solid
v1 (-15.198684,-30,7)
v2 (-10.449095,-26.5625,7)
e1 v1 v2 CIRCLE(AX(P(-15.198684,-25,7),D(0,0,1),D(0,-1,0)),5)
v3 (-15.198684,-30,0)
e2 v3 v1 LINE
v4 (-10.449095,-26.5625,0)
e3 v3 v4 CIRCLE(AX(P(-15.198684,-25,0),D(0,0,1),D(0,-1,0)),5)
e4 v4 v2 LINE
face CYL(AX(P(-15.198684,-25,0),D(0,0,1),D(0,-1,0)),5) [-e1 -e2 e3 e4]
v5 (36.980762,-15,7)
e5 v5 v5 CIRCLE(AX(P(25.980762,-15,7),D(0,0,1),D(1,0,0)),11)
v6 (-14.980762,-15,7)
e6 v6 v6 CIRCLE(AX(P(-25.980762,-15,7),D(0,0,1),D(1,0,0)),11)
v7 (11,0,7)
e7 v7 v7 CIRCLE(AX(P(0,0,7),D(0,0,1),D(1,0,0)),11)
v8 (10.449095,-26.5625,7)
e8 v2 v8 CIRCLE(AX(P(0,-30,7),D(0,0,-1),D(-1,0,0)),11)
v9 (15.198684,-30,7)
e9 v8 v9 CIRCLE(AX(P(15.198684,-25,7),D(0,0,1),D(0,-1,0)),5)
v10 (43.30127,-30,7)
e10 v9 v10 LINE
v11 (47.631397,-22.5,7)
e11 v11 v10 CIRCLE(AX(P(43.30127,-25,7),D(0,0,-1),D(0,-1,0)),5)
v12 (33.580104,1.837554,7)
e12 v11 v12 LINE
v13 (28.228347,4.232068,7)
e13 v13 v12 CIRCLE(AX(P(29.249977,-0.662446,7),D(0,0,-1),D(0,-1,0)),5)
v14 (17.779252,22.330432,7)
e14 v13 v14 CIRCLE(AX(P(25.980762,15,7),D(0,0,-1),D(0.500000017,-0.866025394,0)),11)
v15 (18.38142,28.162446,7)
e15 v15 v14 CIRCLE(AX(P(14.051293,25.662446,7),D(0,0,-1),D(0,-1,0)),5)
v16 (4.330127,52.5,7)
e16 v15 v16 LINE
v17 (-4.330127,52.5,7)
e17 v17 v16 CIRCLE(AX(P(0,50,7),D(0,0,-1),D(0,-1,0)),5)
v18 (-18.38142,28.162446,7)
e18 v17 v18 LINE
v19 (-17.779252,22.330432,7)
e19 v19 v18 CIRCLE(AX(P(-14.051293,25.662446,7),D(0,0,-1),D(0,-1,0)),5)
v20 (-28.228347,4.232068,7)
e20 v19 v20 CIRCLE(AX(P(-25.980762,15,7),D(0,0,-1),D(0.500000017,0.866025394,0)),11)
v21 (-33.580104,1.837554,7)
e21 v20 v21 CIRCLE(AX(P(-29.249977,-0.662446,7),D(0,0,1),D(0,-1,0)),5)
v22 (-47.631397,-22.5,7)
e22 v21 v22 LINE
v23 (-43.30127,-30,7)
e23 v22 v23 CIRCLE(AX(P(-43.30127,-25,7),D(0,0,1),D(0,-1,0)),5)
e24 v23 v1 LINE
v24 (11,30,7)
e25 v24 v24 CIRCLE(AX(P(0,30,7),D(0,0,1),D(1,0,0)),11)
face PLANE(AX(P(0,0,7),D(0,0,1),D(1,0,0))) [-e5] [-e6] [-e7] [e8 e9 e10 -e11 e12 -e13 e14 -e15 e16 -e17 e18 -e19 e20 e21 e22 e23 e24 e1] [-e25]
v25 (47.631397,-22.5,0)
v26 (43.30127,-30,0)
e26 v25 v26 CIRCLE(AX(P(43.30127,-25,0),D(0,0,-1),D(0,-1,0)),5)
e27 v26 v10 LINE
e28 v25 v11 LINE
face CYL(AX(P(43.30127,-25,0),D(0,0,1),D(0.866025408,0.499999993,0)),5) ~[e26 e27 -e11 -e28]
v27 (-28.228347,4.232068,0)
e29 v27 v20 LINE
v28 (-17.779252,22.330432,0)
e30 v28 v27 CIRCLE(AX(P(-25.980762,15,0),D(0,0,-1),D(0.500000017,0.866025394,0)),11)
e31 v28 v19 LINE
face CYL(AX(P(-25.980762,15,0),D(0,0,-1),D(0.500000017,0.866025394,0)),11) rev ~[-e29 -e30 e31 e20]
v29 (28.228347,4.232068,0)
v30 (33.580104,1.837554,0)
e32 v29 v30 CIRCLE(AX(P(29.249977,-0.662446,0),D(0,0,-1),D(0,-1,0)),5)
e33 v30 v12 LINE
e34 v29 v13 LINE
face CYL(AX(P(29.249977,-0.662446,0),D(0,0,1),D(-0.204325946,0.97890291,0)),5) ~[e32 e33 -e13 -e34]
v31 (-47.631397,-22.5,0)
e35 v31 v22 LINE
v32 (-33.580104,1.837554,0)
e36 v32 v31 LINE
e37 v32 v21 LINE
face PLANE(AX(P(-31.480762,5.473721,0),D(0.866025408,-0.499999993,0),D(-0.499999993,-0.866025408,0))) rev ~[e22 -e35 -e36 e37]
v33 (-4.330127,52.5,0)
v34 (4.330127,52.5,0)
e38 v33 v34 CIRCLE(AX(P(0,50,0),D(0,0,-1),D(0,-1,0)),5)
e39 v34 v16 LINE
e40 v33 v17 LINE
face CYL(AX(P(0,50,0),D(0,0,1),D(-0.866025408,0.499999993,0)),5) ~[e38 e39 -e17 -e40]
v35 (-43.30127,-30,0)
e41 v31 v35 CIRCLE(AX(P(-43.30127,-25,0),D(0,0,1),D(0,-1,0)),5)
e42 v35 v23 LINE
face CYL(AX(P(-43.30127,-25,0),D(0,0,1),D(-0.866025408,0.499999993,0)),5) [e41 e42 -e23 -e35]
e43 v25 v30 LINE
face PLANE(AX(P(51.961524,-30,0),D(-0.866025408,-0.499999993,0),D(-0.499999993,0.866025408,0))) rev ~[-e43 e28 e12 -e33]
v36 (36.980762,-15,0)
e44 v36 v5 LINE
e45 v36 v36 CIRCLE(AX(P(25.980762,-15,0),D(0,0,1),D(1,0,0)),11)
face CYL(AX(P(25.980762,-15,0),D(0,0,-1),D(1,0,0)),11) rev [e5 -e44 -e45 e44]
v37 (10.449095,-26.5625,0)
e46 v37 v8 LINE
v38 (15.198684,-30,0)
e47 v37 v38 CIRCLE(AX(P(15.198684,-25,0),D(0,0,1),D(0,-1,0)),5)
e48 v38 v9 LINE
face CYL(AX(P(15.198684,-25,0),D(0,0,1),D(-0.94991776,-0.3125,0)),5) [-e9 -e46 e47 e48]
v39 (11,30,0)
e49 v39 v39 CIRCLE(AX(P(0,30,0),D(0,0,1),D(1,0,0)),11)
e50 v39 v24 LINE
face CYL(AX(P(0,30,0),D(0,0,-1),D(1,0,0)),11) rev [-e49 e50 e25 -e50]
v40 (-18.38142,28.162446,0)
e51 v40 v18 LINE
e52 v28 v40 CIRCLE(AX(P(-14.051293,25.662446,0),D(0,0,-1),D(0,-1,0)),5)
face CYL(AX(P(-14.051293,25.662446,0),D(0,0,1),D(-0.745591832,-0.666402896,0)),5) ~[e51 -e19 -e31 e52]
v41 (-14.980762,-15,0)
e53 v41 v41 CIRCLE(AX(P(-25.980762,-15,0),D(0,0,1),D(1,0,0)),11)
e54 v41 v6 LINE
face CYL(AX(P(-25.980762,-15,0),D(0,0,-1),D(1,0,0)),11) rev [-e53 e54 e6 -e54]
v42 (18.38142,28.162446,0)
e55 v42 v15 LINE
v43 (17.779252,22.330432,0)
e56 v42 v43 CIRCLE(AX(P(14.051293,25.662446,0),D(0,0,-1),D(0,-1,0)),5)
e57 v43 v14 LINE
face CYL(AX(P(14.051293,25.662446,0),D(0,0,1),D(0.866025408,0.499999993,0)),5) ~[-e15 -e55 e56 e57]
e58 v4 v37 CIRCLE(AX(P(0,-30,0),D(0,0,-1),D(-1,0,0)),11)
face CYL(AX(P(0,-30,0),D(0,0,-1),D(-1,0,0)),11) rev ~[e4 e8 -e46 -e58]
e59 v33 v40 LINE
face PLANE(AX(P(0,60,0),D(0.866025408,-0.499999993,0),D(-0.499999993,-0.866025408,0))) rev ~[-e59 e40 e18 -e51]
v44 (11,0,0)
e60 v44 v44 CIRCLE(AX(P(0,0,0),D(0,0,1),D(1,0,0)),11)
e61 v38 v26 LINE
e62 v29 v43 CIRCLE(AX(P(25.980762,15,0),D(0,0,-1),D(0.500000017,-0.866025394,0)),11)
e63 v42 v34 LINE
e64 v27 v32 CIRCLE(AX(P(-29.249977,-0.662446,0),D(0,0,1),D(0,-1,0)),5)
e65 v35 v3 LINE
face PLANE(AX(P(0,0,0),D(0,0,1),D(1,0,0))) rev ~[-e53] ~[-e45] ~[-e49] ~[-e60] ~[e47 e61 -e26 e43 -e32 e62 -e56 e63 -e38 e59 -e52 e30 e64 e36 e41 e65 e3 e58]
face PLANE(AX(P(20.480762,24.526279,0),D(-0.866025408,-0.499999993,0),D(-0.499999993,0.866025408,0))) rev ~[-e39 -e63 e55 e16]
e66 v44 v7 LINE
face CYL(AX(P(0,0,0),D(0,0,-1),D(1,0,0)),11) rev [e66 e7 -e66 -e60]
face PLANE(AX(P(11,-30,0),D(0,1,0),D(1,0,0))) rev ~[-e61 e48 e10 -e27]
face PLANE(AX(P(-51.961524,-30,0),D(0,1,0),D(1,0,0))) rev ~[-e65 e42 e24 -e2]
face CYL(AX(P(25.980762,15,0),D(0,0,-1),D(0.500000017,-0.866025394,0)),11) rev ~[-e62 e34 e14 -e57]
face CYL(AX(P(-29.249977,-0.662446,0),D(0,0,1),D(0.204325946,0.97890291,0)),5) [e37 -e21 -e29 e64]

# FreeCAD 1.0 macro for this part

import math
import FreeCAD as App
import Part
import Sketcher

V = App.Vector
Q = App.Units.Quantity


def edges_at(feature, points):
    """Names of the edges that pass closest to the given points."""
    edges = feature.Shape.Edges
    near = lambda p: min(range(len(edges)), key=lambda i: edges[i].distToShape(Part.Vertex(*p))[0])
    return sorted({f"Edge{near(p) + 1}" for p in points})

doc = App.newDocument("Part")
body = doc.addObject("PartDesign::Body", "Body")

# Sketch on XY plane
sketch1 = body.newObject("Sketcher::SketchObject", "Sketch")
sketch1.AttachmentSupport = (doc.getObject("XY_Plane"), [""])
sketch1.MapMode = "FlatFace"
sketch1.addGeometry(Part.ArcOfCircle(Part.Circle(V(-26, 15, 0), V(0, 0, 1), 11), math.radians(-120), math.radians(60)), False)
sketch1.addGeometry(Part.LineSegment(V(-31, 5, 0), V(-52, -30, 0)), False)
sketch1.addGeometry(Part.LineSegment(V(-52, -30, 0), V(-11, -30, 0)), False)
sketch1.addGeometry(Part.ArcOfCircle(Part.Circle(V(0, -30, 0), V(0, 0, 1), 11), math.radians(0), math.radians(180)), False)
sketch1.addGeometry(Part.LineSegment(V(11, -30, 0), V(52, -30, 0)), False)
sketch1.addGeometry(Part.LineSegment(V(52, -30, 0), V(31, 5, 0)), False)
sketch1.addGeometry(Part.ArcOfCircle(Part.Circle(V(26, 15, 0), V(0, 0, 1), 11), math.radians(120), math.radians(300)), False)
sketch1.addGeometry(Part.LineSegment(V(20, 25, 0), V(0, 60, 0)), False)
sketch1.addGeometry(Part.LineSegment(V(0, 60, 0), V(-20, 25, 0)), False)
sketch1.addGeometry(Part.Circle(V(-26, -15, 0), V(0, 0, 1), 11), False)
sketch1.addGeometry(Part.Circle(V(26, -15, 0), V(0, 0, 1), 11), False)
sketch1.addGeometry(Part.Circle(V(0, 0, 0), V(0, 0, 1), 11), False)
sketch1.addGeometry(Part.Circle(V(0, 30, 0), V(0, 0, 1), 11), False)
sketch1.addConstraint(Sketcher.Constraint("Coincident", 0, 1, 1, 1))
sketch1.addConstraint(Sketcher.Constraint("Coincident", 1, 2, 2, 1))
sketch1.addConstraint(Sketcher.Constraint("Coincident", 2, 2, 3, 2))
sketch1.addConstraint(Sketcher.Constraint("Coincident", 3, 1, 4, 1))
sketch1.addConstraint(Sketcher.Constraint("Coincident", 4, 2, 5, 1))
sketch1.addConstraint(Sketcher.Constraint("Coincident", 5, 2, 6, 2))
sketch1.addConstraint(Sketcher.Constraint("Coincident", 6, 1, 7, 1))
sketch1.addConstraint(Sketcher.Constraint("Coincident", 7, 2, 8, 1))
sketch1.addConstraint(Sketcher.Constraint("Coincident", 8, 2, 0, 2))
sketch1.addConstraint(Sketcher.Constraint("Horizontal", 2))
sketch1.addConstraint(Sketcher.Constraint("Horizontal", 4))
sketch1.addConstraint(Sketcher.Constraint("Coincident", 11, 3, -1, 1))
sketch1.addConstraint(Sketcher.Constraint("Equal", 0, 3))
sketch1.addConstraint(Sketcher.Constraint("Equal", 3, 6))
sketch1.addConstraint(Sketcher.Constraint("Equal", 6, 9))
sketch1.addConstraint(Sketcher.Constraint("Equal", 9, 10))
sketch1.addConstraint(Sketcher.Constraint("Equal", 10, 11))
sketch1.addConstraint(Sketcher.Constraint("Equal", 11, 12))
sketch1.addConstraint(Sketcher.Constraint("Symmetric", 6, 3, 9, 3, -1, 1))
sketch1.addConstraint(Sketcher.Constraint("Symmetric", 0, 3, 10, 3, -1, 1))
sketch1.addConstraint(Sketcher.Constraint("Symmetric", 3, 3, 12, 3, -1, 1))
sketch1.addConstraint(Sketcher.Constraint("Symmetric", 0, 3, 6, 3, -2))
sketch1.addConstraint(Sketcher.Constraint("Symmetric", 2, 2, 3, 1, -2))
sketch1.addConstraint(Sketcher.Constraint("PointOnObject", 7, 2, -2))
sketch1.addConstraint(Sketcher.Constraint("Parallel", 5, 7))
sketch1.addConstraint(Sketcher.Constraint("Parallel", 1, 8))
sketch1.addConstraint(Sketcher.Constraint("Horizontal", 3, 3, 1, 2))
sketch1.addConstraint(Sketcher.Constraint("Horizontal", 0, 1, 5, 2))
sketch1.addConstraint(Sketcher.Constraint("Horizontal", 6, 1, 8, 2))
sketch1.addConstraint(Sketcher.Constraint("Equal", 5, 7))
sketch1.addConstraint(Sketcher.Constraint("Diameter", 9, Q("22 mm")))
sketch1.addConstraint(Sketcher.Constraint("Angle", 1, Q("-120 deg")))
sketch1.addConstraint(Sketcher.Constraint("DistanceY", -1, 1, 0, 3, Q("15 mm")))
sketch1.addConstraint(Sketcher.Constraint("DistanceY", 3, 3, -1, 1, Q("30 mm")))
sketch1.addConstraint(Sketcher.Constraint("DistanceY", -1, 1, 7, 2, Q("60 mm")))
sketch1.addConstraint(Sketcher.Constraint("DistanceX", 6, 1, 5, 2, Q("11 mm")))
pad1 = body.newObject("PartDesign::Pad", "Pad")
pad1.Profile = sketch1
pad1.Length = 7
doc.recompute()

fillet = body.newObject("PartDesign::Fillet", "Fillet")
fillet.Base = (pad1, edges_at(pad1, [
    (-51.962, -30, 3.5),
    (51.962, -30, 3.5),
    (0, 60, 3.5),
    (-11, -30, 3.5),
    (11, -30, 3.5),
    (31.481, 5.474, 3.5),
    (20.481, 24.526, 3.5),
    (-20.481, 24.526, 3.5),
    (-31.481, 5.474, 3.5),
]))
fillet.Radius = 5

doc.recompute()
